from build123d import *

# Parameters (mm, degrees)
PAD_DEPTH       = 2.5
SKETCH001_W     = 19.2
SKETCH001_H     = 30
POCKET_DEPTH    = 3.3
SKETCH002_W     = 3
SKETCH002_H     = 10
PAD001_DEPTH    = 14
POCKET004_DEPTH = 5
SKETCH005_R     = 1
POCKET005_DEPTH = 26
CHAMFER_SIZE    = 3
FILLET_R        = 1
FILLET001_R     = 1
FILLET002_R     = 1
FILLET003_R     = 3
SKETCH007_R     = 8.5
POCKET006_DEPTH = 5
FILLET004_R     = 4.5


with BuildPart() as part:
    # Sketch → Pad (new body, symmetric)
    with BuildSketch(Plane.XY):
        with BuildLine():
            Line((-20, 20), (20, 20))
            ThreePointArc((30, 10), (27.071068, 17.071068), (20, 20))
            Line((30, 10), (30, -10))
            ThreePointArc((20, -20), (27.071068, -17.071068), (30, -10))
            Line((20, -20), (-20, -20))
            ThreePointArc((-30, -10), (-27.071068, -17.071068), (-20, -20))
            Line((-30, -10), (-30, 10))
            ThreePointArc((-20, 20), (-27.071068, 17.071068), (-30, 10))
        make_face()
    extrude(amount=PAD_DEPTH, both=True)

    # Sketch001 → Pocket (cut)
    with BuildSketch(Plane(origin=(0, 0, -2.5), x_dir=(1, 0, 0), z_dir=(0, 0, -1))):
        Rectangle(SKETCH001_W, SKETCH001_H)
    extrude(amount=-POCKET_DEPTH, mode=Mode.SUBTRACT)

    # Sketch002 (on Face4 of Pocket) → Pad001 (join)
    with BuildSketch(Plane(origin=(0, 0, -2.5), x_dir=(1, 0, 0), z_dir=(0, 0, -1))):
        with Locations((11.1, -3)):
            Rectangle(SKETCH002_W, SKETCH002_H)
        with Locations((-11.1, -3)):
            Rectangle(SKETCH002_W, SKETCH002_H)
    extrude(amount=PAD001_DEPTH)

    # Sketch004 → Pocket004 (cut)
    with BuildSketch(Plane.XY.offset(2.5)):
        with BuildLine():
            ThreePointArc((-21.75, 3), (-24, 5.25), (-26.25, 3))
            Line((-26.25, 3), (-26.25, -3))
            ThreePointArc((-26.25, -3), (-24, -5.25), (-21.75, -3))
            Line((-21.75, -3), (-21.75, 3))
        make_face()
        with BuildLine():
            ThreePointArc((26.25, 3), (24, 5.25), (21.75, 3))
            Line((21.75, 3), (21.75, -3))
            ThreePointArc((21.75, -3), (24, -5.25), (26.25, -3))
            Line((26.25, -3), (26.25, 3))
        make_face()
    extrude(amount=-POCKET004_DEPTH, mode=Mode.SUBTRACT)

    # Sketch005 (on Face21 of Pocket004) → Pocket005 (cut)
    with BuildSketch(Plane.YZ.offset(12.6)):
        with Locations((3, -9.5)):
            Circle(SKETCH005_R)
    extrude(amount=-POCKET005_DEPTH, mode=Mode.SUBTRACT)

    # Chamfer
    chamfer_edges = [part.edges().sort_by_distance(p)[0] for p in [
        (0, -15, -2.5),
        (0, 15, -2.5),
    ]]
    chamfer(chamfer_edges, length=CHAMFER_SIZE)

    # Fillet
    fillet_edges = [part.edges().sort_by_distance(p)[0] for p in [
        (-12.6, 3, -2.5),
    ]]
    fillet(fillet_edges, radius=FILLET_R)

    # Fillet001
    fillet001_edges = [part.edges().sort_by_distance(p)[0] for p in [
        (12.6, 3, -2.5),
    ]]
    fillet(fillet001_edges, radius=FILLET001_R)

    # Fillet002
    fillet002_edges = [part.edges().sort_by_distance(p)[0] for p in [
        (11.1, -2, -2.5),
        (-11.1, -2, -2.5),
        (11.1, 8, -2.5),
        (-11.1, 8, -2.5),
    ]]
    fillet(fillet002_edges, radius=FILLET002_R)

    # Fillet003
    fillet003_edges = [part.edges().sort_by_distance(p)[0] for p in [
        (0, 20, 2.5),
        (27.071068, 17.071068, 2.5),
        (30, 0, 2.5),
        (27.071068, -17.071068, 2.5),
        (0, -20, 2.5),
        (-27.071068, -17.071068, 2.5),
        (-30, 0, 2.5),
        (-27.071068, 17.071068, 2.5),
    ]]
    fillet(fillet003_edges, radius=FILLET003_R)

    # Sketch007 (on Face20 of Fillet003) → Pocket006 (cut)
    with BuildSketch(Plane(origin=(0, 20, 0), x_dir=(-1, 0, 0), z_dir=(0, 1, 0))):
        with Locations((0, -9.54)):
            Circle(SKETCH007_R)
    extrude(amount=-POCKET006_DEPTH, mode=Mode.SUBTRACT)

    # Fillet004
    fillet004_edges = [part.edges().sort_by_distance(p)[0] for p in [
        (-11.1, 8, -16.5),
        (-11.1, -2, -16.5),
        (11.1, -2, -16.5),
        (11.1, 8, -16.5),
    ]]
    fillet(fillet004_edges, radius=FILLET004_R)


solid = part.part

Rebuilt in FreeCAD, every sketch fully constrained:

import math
import FreeCAD as App
import Part
import Sketcher
from FreeCAD import Vector
Q = App.Units.Quantity


def edges_at(feature, points):
    """Names of the edges that pass closest to the given points."""
    edges = feature.Shape.Edges
    near = lambda p: min(range(len(edges)), key=lambda i: edges[i].distToShape(Part.Vertex(*p))[0])
    return sorted({f"Edge{near(p) + 1}" for p in points})

doc = App.newDocument("Part")
body = doc.addObject("PartDesign::Body", "Body")

# Sketch on XY plane
sketch1 = doc.addObject("Sketcher::SketchObject", "Sketch")
body.addObject(sketch1)
sketch1.AttachmentSupport = (doc.XY_Plane, [""])
sketch1.MapMode = "FlatFace"
sketch1.addGeometry([
    Part.LineSegment(Vector(20, 20, 0), Vector(-20, 20, 0)),  # 0
    Part.ArcOfCircle(Part.Circle(Vector(-20, 10, 0), Vector(0, 0, 1), 10), math.radians(90), math.radians(180)),  # 1
    Part.LineSegment(Vector(-30, 10, 0), Vector(-30, -10, 0)),  # 2
    Part.ArcOfCircle(Part.Circle(Vector(-20, -10, 0), Vector(0, 0, 1), 10), math.radians(180), math.radians(270)),  # 3
    Part.LineSegment(Vector(-20, -20, 0), Vector(20, -20, 0)),  # 4
    Part.ArcOfCircle(Part.Circle(Vector(20, -10, 0), Vector(0, 0, 1), 10), math.radians(-90), math.radians(0)),  # 5
    Part.LineSegment(Vector(30, -10, 0), Vector(30, 10, 0)),  # 6
    Part.ArcOfCircle(Part.Circle(Vector(20, 10, 0), Vector(0, 0, 1), 10), math.radians(0), math.radians(90)),  # 7
], False)
sketch1.addConstraint([
    Sketcher.Constraint("Tangent", 0, 2, 1, 1),
    Sketcher.Constraint("Tangent", 1, 2, 2, 1),
    Sketcher.Constraint("Tangent", 2, 2, 3, 1),
    Sketcher.Constraint("Tangent", 3, 2, 4, 1),
    Sketcher.Constraint("Tangent", 4, 2, 5, 1),
    Sketcher.Constraint("Tangent", 5, 2, 6, 1),
    Sketcher.Constraint("Tangent", 6, 2, 7, 1),
    Sketcher.Constraint("Tangent", 7, 2, 0, 1),
    Sketcher.Constraint("Horizontal", 0),
    Sketcher.Constraint("Vertical", 2),
    Sketcher.Constraint("Horizontal", 4),
    Sketcher.Constraint("Vertical", 6),
    Sketcher.Constraint("Equal", 1, 3),
    Sketcher.Constraint("Equal", 3, 5),
    Sketcher.Constraint("Equal", 5, 7),
    Sketcher.Constraint("Symmetric", 1, 3, 5, 3, -1, 1),
    Sketcher.Constraint("Radius", 1, Q("9.999999 mm")),
    Sketcher.Constraint("DistanceX", 0, 2, 0, 1, Q("40 mm")),
    Sketcher.Constraint("DistanceY", 2, 2, 2, 1, Q("20 mm")),
])
pad1 = doc.addObject("PartDesign::Pad", "Pad")
body.addObject(pad1)
pad1.Profile = sketch1
pad1.Length = 5
pad1.Midplane = True

# Sketch on XY plane
sketch2 = doc.addObject("Sketcher::SketchObject", "Sketch001")
body.addObject(sketch2)
sketch2.AttachmentSupport = (doc.XY_Plane, [""])
sketch2.MapMode = "FlatFace"
sketch2.AttachmentOffset = App.Placement(Vector(0, 0, -2.5), App.Rotation())
sketch2.addGeometry([
    Part.LineSegment(Vector(-10, -15, 0), Vector(-10, 15, 0)),
    Part.LineSegment(Vector(-10, 15, 0), Vector(10, 15, 0)),
    Part.LineSegment(Vector(10, 15, 0), Vector(10, -15, 0)),
    Part.LineSegment(Vector(10, -15, 0), Vector(-10, -15, 0)),
], False)
sketch2.addConstraint([
    Sketcher.Constraint("Coincident", 0, 2, 1, 1),
    Sketcher.Constraint("Coincident", 1, 2, 2, 1),
    Sketcher.Constraint("Coincident", 2, 2, 3, 1),
    Sketcher.Constraint("Coincident", 3, 2, 0, 1),
    Sketcher.Constraint("Vertical", 0),
    Sketcher.Constraint("Horizontal", 1),
    Sketcher.Constraint("Vertical", 2),
    Sketcher.Constraint("Horizontal", 3),
    Sketcher.Constraint("Symmetric", 0, 2, 2, 2, -1, 1),
    Sketcher.Constraint("DistanceY", 0, 1, 0, 2, Q("30 mm")),
    Sketcher.Constraint("DistanceX", 1, 1, 1, 2, Q("19.2 mm")),
])
pocket1 = doc.addObject("PartDesign::Pocket", "Pocket")
body.addObject(pocket1)
pocket1.Profile = sketch2
pocket1.Length = 3.3
pocket1.Reversed = True

# Sketch on XY plane
sketch3 = doc.addObject("Sketcher::SketchObject", "Sketch002")
body.addObject(sketch3)
sketch3.AttachmentSupport = (doc.XY_Plane, [""])
sketch3.MapMode = "FlatFace"
sketch3.AttachmentOffset = App.Placement(Vector(0, 0, -2.5), App.Rotation())
sketch3.addGeometry([
    Part.LineSegment(Vector(9.6, -2, 0), Vector(9.6, 8, 0)),  # 0
    Part.LineSegment(Vector(9.6, 8, 0), Vector(12.6, 8, 0)),  # 1
    Part.LineSegment(Vector(12.6, 8, 0), Vector(12.6, -2, 0)),  # 2
    Part.LineSegment(Vector(12.6, -2, 0), Vector(9.6, -2, 0)),  # 3
    Part.LineSegment(Vector(-12.6, -2, 0), Vector(-12.6, 8, 0)),  # 4
    Part.LineSegment(Vector(-12.6, 8, 0), Vector(-9.6, 8, 0)),  # 5
    Part.LineSegment(Vector(-9.6, 8, 0), Vector(-9.6, -2, 0)),  # 6
    Part.LineSegment(Vector(-9.6, -2, 0), Vector(-12.6, -2, 0)),  # 7
], False)
sketch3.addConstraint([
    Sketcher.Constraint("Coincident", 0, 2, 1, 1),
    Sketcher.Constraint("Coincident", 1, 2, 2, 1),
    Sketcher.Constraint("Coincident", 2, 2, 3, 1),
    Sketcher.Constraint("Coincident", 3, 2, 0, 1),
    Sketcher.Constraint("Coincident", 4, 2, 5, 1),
    Sketcher.Constraint("Coincident", 5, 2, 6, 1),
    Sketcher.Constraint("Coincident", 6, 2, 7, 1),
    Sketcher.Constraint("Coincident", 7, 2, 4, 1),
    Sketcher.Constraint("Vertical", 0),
    Sketcher.Constraint("Horizontal", 1),
    Sketcher.Constraint("Vertical", 2),
    Sketcher.Constraint("Horizontal", 3),
    Sketcher.Constraint("Vertical", 4),
    Sketcher.Constraint("Horizontal", 5),
    Sketcher.Constraint("Vertical", 6),
    Sketcher.Constraint("Horizontal", 7),
    Sketcher.Constraint("Symmetric", 1, 2, 4, 2, -2),
    Sketcher.Constraint("Symmetric", 3, 2, 6, 2, -2),
    Sketcher.Constraint("DistanceX", 1, 1, 1, 2, Q("3 mm")),
    Sketcher.Constraint("DistanceY", 0, 1, 0, 2, Q("10 mm")),
    Sketcher.Constraint("DistanceY", -1, 1, 0, 2, Q("8 mm")),
    Sketcher.Constraint("DistanceX", -1, 1, 0, 2, Q("9.6 mm")),
])
pad2 = doc.addObject("PartDesign::Pad", "Pad001")
body.addObject(pad2)
pad2.Profile = sketch3
pad2.Length = 14
pad2.Reversed = True

# Sketch on XY plane
sketch4 = doc.addObject("Sketcher::SketchObject", "Sketch003")
body.addObject(sketch4)
sketch4.AttachmentSupport = (doc.XY_Plane, [""])
sketch4.MapMode = "FlatFace"
sketch4.AttachmentOffset = App.Placement(Vector(0, 0, 2.5), App.Rotation())
sketch4.addGeometry([
    Part.ArcOfCircle(Part.Circle(Vector(-24, 3, 0), Vector(0, 0, 1), 2.2), math.radians(0), math.radians(180)),  # 0
    Part.LineSegment(Vector(-26.2, 3, 0), Vector(-26.2, -3, 0)),  # 1
    Part.ArcOfCircle(Part.Circle(Vector(-24, -3, 0), Vector(0, 0, 1), 2.2), math.radians(180), math.radians(360)),  # 2
    Part.LineSegment(Vector(-21.8, -3, 0), Vector(-21.8, 3, 0)),  # 3
    Part.ArcOfCircle(Part.Circle(Vector(24, 3, 0), Vector(0, 0, 1), 2.2), math.radians(0), math.radians(180)),  # 4
    Part.LineSegment(Vector(21.8, 3, 0), Vector(21.8, -3, 0)),  # 5
    Part.ArcOfCircle(Part.Circle(Vector(24, -3, 0), Vector(0, 0, 1), 2.2), math.radians(180), math.radians(360)),  # 6
    Part.LineSegment(Vector(26.2, -3, 0), Vector(26.2, 3, 0)),  # 7
], False)
sketch4.addConstraint([
    Sketcher.Constraint("Tangent", 0, 2, 1, 1),
    Sketcher.Constraint("Tangent", 1, 2, 2, 1),
    Sketcher.Constraint("Tangent", 2, 2, 3, 1),
    Sketcher.Constraint("Tangent", 3, 2, 0, 1),
    Sketcher.Constraint("Tangent", 4, 2, 5, 1),
    Sketcher.Constraint("Tangent", 5, 2, 6, 1),
    Sketcher.Constraint("Tangent", 6, 2, 7, 1),
    Sketcher.Constraint("Tangent", 7, 2, 4, 1),
    Sketcher.Constraint("Vertical", 1),
    Sketcher.Constraint("Vertical", 3),
    Sketcher.Constraint("Vertical", 5),
    Sketcher.Constraint("Vertical", 7),
    Sketcher.Constraint("Equal", 2, 4),
    Sketcher.Constraint("Symmetric", 2, 3, 4, 3, -1, 1),
    Sketcher.Constraint("Horizontal", 0, 3, 4, 3),
    Sketcher.Constraint("Horizontal", 2, 3, 6, 3),
    Sketcher.Constraint("DistanceY", 1, 2, 1, 1, Q("6 mm")),
    Sketcher.Constraint("Radius", 0, Q("2.25 mm")),
    Sketcher.Constraint("DistanceX", 0, 3, -1, 1, Q("24 mm")),
])
pocket2 = doc.addObject("PartDesign::Pocket", "Pocket001")
body.addObject(pocket2)
pocket2.Profile = sketch4
pocket2.Length = 5

# Sketch on YZ plane
sketch5 = doc.addObject("Sketcher::SketchObject", "Sketch004")
body.addObject(sketch5)
sketch5.AttachmentSupport = (doc.YZ_Plane, [""])
sketch5.MapMode = "FlatFace"
sketch5.AttachmentOffset = App.Placement(Vector(0, 0, 12.6), App.Rotation())
sketch5.addGeometry(Part.Circle(Vector(3, -9.5, 0), Vector(0, 0, 1), 1), False)
sketch5.addConstraint([
    Sketcher.Constraint("Diameter", 0, Q("2 mm")),
    Sketcher.Constraint("DistanceX", -1, 1, 0, 3, Q("3 mm")),
    Sketcher.Constraint("DistanceY", 0, 3, -1, 1, Q("9.5 mm")),
])
pocket3 = doc.addObject("PartDesign::Pocket", "Pocket002")
body.addObject(pocket3)
pocket3.Profile = sketch5
pocket3.Length = 26
doc.recompute()

chamfer = doc.addObject("PartDesign::Chamfer", "Chamfer")
body.addObject(chamfer)
chamfer.Base = (pocket3, edges_at(pocket3, [(0, -15, -2.5), (0, 15, -2.5)]))
chamfer.Size = 3
doc.recompute()

fillet = doc.addObject("PartDesign::Fillet", "Fillet")
body.addObject(fillet)
fillet.Base = (chamfer, edges_at(chamfer, [(-12.6, 3, -2.5)]))
fillet.Radius = 1
doc.recompute()

fillet2 = doc.addObject("PartDesign::Fillet", "Fillet001")
body.addObject(fillet2)
fillet2.Base = (fillet, edges_at(fillet, [(12.6, 3, -2.5)]))
fillet2.Radius = 1
doc.recompute()

fillet3 = doc.addObject("PartDesign::Fillet", "Fillet002")
body.addObject(fillet3)
fillet3.Base = (fillet2, edges_at(fillet2, [
    (11.6, -2, -2.5),
    (-11.6, -2, -2.5),
    (11.6, 8, -2.5),
    (-11.6, 8, -2.5),
]))
fillet3.Radius = 1
doc.recompute()

fillet4 = doc.addObject("PartDesign::Fillet", "Fillet003")
body.addObject(fillet4)
fillet4.Base = (fillet3, edges_at(fillet3, [
    (0, 20, 2.5),
    (27.071, 17.071, 2.5),
    (30, 0, 2.5),
    (27.071, -17.071, 2.5),
    (0, -20, 2.5),
    (-27.071, -17.071, 2.5),
    (-30, 0, 2.5),
    (-27.071, 17.071, 2.5),
]))
fillet4.Radius = 3

# Sketch on XZ plane
sketch6 = doc.addObject("Sketcher::SketchObject", "Sketch005")
body.addObject(sketch6)
sketch6.AttachmentSupport = (doc.XZ_Plane, [""])
sketch6.MapMode = "FlatFace"
sketch6.AttachmentOffset = App.Placement(Vector(0, 0, -20), App.Rotation())
sketch6.addGeometry(Part.Circle(Vector(0, -10, 0), Vector(0, 0, 1), 8), False)
sketch6.addConstraint([
    Sketcher.Constraint("PointOnObject", 0, 3, -2),
    Sketcher.Constraint("Diameter", 0, Q("17 mm")),
    Sketcher.Constraint("DistanceY", 0, 3, -1, 1, Q("9.54 mm")),
])
pocket4 = doc.addObject("PartDesign::Pocket", "Pocket003")
body.addObject(pocket4)
pocket4.Profile = sketch6
pocket4.Length = 5
pocket4.Reversed = True
doc.recompute()

fillet5 = doc.addObject("PartDesign::Fillet", "Fillet004")
body.addObject(fillet5)
fillet5.Base = (pocket4, edges_at(pocket4, [
    (-11.1, 8, -16.5),
    (-11.1, -2, -16.5),
    (11.1, -2, -16.5),
    (11.1, 8, -16.5),
]))
fillet5.Radius = 4.5

doc.recompute()
